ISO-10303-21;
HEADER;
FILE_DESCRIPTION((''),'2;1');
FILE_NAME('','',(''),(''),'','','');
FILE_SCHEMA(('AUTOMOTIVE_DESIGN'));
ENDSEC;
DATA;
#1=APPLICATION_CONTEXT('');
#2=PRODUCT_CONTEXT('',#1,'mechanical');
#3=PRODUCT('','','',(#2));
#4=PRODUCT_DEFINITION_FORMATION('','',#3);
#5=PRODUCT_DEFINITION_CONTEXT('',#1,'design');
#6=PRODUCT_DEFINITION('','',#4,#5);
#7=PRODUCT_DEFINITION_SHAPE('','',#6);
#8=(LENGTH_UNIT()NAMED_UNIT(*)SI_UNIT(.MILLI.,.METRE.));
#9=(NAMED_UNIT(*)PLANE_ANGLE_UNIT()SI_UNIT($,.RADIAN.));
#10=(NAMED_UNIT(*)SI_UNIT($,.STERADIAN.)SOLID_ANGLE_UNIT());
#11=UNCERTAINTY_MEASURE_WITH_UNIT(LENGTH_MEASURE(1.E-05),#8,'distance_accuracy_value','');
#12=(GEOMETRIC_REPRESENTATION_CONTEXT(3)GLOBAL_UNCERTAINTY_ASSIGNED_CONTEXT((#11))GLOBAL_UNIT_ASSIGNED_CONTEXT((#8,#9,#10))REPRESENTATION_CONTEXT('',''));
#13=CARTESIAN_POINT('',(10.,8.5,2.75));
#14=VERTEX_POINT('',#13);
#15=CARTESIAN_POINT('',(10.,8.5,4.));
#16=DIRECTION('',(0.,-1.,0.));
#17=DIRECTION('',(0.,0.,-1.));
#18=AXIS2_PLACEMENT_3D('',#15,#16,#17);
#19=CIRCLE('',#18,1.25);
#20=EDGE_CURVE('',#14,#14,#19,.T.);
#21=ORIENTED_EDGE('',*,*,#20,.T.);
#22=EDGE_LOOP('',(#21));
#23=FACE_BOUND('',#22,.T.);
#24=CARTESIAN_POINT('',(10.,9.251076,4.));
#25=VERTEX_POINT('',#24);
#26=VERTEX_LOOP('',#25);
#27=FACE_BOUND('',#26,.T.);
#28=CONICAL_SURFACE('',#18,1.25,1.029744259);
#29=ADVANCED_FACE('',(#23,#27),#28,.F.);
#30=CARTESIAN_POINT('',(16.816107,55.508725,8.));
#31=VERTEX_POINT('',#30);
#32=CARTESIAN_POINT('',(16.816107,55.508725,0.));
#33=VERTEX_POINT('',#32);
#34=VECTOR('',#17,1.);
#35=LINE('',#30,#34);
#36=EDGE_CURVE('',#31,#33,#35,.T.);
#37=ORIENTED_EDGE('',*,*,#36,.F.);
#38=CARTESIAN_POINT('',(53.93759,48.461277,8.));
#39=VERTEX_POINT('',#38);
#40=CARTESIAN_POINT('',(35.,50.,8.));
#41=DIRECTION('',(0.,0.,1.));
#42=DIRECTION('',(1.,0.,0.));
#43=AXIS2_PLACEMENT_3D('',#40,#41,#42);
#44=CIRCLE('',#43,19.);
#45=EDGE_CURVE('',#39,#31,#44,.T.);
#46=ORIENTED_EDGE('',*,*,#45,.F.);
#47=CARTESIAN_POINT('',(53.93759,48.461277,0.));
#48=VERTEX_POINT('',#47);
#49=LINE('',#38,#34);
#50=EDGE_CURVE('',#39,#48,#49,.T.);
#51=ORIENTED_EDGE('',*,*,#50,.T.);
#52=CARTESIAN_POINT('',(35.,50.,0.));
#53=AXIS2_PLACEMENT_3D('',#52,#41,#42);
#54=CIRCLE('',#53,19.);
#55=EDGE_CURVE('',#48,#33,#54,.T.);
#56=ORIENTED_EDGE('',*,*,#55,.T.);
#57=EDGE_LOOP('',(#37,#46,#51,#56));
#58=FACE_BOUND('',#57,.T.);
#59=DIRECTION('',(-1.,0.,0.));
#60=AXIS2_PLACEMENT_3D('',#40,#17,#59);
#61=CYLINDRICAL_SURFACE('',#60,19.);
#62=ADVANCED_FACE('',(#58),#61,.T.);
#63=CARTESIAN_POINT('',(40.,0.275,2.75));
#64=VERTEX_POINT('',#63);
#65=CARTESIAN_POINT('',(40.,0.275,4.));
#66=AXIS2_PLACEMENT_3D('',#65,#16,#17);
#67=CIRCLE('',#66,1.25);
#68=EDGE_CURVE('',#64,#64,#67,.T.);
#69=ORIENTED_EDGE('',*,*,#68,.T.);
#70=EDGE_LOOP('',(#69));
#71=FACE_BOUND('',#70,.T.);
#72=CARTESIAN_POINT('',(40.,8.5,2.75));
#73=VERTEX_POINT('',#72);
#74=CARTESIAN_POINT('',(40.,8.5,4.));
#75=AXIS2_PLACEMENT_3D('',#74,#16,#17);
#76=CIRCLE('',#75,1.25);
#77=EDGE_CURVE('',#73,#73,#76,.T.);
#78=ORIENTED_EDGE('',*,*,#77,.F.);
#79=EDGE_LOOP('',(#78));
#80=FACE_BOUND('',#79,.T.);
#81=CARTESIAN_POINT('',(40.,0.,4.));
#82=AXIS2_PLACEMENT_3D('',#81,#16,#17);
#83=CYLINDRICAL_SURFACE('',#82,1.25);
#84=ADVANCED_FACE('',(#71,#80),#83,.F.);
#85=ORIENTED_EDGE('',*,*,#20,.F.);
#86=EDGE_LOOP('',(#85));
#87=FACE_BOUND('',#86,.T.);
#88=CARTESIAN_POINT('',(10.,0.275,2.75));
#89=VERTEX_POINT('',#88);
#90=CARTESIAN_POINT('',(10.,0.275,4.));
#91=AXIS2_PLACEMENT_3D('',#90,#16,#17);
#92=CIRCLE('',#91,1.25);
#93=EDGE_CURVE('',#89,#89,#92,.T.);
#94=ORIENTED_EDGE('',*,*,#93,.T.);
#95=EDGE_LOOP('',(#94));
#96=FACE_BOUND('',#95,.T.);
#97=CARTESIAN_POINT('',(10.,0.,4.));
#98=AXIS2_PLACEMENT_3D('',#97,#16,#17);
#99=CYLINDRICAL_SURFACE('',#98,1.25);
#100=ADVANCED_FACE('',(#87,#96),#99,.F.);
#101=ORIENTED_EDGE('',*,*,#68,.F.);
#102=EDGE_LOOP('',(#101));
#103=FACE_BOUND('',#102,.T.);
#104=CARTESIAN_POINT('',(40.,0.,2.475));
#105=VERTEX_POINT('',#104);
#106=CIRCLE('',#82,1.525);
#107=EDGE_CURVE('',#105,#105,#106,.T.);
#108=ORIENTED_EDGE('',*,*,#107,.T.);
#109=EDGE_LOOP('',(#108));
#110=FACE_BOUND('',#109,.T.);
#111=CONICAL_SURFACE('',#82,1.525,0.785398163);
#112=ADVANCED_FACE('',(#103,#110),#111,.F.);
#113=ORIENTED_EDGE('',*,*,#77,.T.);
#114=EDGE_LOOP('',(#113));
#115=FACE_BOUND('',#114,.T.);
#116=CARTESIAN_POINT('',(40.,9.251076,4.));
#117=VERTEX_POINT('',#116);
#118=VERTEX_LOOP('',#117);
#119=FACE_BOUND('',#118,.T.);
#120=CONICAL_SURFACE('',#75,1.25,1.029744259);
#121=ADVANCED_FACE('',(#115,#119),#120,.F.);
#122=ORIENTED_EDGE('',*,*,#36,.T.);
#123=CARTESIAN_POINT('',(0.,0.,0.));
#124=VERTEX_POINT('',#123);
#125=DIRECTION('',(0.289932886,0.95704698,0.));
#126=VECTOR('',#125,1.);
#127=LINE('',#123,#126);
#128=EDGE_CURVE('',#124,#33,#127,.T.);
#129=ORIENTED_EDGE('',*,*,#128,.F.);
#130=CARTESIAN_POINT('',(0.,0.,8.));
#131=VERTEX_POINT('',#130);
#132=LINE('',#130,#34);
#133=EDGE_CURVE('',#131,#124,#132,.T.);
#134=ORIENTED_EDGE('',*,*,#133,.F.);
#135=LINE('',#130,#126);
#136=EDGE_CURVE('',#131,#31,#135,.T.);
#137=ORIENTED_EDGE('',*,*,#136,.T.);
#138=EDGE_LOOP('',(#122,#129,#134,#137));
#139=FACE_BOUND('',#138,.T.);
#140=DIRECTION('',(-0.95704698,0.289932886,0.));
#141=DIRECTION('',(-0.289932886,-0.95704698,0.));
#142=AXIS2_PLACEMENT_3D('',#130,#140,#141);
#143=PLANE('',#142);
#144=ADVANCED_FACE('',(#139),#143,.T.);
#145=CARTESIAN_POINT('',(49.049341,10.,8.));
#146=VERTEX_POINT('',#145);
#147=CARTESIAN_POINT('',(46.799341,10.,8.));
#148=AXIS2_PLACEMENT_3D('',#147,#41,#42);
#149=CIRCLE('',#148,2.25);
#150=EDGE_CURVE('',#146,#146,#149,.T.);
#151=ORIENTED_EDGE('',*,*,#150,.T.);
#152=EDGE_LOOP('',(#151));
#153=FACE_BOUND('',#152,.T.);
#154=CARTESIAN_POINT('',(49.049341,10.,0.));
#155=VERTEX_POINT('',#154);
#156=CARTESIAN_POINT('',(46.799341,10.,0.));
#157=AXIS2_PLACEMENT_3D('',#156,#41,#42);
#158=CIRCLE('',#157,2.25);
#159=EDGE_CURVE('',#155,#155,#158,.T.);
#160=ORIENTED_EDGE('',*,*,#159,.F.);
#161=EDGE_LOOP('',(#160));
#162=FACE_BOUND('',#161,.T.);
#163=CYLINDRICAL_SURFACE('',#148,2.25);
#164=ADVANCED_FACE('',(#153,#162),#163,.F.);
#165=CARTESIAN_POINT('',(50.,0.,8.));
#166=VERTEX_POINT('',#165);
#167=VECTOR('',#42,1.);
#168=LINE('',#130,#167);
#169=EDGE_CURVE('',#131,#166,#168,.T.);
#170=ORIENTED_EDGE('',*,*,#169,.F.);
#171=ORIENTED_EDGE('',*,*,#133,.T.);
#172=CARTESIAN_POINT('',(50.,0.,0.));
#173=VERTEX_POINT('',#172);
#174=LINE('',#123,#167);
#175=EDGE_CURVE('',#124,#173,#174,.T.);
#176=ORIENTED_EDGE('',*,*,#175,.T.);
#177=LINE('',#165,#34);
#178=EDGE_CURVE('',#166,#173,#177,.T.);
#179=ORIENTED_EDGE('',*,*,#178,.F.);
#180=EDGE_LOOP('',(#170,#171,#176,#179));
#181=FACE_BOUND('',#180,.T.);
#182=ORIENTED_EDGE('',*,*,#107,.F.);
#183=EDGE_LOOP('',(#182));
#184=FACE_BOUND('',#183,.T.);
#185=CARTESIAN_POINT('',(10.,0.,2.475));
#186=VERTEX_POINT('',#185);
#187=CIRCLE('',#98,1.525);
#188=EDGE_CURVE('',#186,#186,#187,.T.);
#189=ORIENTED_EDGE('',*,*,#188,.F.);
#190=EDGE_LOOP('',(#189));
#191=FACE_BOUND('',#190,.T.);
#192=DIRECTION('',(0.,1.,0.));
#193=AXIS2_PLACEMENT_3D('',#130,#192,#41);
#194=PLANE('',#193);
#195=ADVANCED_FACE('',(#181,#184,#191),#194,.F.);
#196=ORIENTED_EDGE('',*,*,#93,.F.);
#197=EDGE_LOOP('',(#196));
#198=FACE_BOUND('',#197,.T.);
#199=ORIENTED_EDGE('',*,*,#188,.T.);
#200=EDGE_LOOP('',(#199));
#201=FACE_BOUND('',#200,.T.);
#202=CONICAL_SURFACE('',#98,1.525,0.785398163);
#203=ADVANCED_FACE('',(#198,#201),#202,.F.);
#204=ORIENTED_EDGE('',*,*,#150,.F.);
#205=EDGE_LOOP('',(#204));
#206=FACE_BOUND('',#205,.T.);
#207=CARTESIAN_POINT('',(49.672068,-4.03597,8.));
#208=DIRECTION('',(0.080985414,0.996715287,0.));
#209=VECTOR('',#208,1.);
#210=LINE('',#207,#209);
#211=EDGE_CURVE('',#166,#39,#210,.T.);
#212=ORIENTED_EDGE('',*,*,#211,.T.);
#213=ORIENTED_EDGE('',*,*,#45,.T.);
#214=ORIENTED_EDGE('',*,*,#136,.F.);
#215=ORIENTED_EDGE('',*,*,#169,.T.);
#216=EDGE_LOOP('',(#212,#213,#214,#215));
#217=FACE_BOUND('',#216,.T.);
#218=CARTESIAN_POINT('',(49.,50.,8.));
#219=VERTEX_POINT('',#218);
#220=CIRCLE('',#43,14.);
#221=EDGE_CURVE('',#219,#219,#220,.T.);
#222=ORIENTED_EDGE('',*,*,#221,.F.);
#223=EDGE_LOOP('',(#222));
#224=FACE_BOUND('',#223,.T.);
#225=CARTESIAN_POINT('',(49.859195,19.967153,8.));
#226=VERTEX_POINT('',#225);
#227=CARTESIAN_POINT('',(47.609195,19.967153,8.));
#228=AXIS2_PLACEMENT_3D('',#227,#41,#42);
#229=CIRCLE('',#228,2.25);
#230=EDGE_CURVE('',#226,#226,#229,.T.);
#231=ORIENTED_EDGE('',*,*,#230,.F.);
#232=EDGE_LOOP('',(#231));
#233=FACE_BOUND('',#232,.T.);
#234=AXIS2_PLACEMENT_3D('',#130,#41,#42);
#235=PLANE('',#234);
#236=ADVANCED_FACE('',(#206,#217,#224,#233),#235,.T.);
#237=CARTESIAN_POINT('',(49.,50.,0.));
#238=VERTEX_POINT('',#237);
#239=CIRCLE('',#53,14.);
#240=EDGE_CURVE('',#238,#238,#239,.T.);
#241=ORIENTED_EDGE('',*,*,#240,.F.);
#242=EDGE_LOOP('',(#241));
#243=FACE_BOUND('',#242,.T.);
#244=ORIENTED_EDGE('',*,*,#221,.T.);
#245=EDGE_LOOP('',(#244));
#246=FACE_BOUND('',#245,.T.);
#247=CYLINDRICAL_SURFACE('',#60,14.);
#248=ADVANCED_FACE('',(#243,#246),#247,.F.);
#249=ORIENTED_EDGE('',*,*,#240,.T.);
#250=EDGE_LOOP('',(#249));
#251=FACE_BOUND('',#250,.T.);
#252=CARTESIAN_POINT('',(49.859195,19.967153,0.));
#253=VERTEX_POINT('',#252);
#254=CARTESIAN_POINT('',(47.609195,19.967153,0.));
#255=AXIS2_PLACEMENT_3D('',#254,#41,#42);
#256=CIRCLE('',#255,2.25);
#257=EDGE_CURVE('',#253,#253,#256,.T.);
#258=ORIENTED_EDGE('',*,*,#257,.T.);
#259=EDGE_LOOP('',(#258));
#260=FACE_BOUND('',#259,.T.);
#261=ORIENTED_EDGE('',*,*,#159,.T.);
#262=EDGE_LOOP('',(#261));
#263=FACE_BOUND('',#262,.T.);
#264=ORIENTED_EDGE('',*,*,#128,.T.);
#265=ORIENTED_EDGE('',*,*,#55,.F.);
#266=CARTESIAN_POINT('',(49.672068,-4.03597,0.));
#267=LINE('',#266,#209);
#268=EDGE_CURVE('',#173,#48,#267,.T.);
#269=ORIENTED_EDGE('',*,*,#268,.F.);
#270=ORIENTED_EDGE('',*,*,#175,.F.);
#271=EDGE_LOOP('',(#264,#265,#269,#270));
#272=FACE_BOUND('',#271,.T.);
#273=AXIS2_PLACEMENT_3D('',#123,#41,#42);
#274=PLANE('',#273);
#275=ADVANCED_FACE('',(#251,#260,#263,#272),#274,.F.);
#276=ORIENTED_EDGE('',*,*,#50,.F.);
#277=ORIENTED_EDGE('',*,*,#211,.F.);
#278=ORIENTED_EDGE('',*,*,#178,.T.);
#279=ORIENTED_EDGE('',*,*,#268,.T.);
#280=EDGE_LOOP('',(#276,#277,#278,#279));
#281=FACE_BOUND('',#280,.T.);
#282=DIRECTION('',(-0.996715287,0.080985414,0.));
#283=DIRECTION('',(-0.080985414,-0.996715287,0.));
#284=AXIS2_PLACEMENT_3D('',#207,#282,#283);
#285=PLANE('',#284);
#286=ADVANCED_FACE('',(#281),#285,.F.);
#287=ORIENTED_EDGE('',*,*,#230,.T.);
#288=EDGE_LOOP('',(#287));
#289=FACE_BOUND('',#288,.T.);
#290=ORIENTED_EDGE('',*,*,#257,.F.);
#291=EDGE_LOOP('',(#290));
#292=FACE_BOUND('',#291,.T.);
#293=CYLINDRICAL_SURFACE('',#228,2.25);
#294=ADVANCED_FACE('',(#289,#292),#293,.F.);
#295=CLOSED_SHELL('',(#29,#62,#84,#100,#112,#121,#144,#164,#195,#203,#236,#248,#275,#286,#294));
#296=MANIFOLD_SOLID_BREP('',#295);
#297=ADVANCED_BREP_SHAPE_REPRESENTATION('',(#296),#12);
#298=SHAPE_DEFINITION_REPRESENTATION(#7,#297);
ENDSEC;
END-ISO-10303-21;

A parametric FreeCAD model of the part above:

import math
import FreeCAD as App
import Part
import Sketcher
Q = App.Units.Quantity

doc = App.newDocument("Part")
body = doc.addObject("PartDesign::Body", "Body")

# Sketch on XY plane
sketch1 = body.newObject("Sketcher::SketchObject", "Sketch")
sketch1.AttachmentSupport = (doc.getObject("XY_Plane"), [""])
sketch1.MapMode = "FlatFace"
sketch1.addGeometry([
    Part.LineSegment(App.Vector(16.816107, 55.508725, 0), App.Vector(0, 0, 0)),  # 0
    Part.LineSegment(App.Vector(0, 0, 0), App.Vector(50, 0, 0)),  # 1
    Part.LineSegment(App.Vector(50, 0, 0), App.Vector(53.93759, 48.461277, 0)),  # 2
    Part.ArcOfCircle(Part.Circle(App.Vector(35, 50, 0), App.Vector(0, 0, 1), 19), math.radians(-4.64521), math.radians(163.146062)),  # 3
    Part.Circle(App.Vector(35, 50, 0), App.Vector(0, 0, 1), 14),  # 4
], False)
sketch1.addConstraint([
    Sketcher.Constraint("Coincident", 0, 2, 1, 1),
    Sketcher.Constraint("Coincident", 1, 2, 2, 1),
    Sketcher.Constraint("Tangent", 2, 2, 3, 1),
    Sketcher.Constraint("Tangent", 3, 2, 0, 1),
    Sketcher.Constraint("Horizontal", 1),
    Sketcher.Constraint("Coincident", 0, 2, -1, 1),
    Sketcher.Constraint("Coincident", 4, 3, 3, 3),
    Sketcher.Constraint("Diameter", 4, Q("28 mm")),
    Sketcher.Constraint("Radius", 3, Q("19 mm")),
    Sketcher.Constraint("DistanceX", 1, 1, 1, 2, Q("50 mm")),
    Sketcher.Constraint("Distance", 0, Q("58 mm")),
    Sketcher.Constraint("DistanceX", -1, 1, 3, 3, Q("35 mm")),
])
pad1 = body.newObject("PartDesign::Pad", "Pad")
pad1.Profile = sketch1
pad1.Length = 8

# Sketch on XY plane
sketch2 = body.newObject("Sketcher::SketchObject", "Sketch001")
sketch2.AttachmentSupport = (doc.getObject("XY_Plane"), [""])
sketch2.MapMode = "FlatFace"
sketch2.AttachmentOffset = App.Placement(App.Vector(0, 0, 8), App.Rotation())
sketch2.addGeometry([
    Part.Circle(App.Vector(46.799341, 10, 0), App.Vector(0, 0, 1), 2.25),
    Part.Circle(App.Vector(47.609195, 19.967153, 0), App.Vector(0, 0, 1), 2.25),
], False)
sketch2.addConstraint([
    Sketcher.Constraint("Equal", 0, 1),
    Sketcher.Constraint("Diameter", 0, Q("4.5 mm")),
    Sketcher.Constraint("DistanceY", -1, 1, 0, 3, Q("10 mm")),
    Sketcher.Constraint("DistanceX", -1, 1, 0, 3, Q("46.799341 mm")),
    Sketcher.Constraint("DistanceX", -1, 1, 1, 3, Q("47.609195 mm")),
    Sketcher.Constraint("DistanceY", -1, 1, 1, 3, Q("19.967153 mm")),
])
doc.recompute()
hole = body.newObject("PartDesign::Hole", "Hole")
hole.Profile = sketch2
hole.ThreadType = "None"
hole.Diameter = 4.5
hole.DepthType = "ThroughAll"

# Sketch on XZ plane
sketch3 = body.newObject("Sketcher::SketchObject", "Sketch002")
sketch3.AttachmentSupport = (doc.getObject("XZ_Plane"), [""])
sketch3.MapMode = "FlatFace"
sketch3.addGeometry([
    Part.Circle(App.Vector(10, 4, 0), App.Vector(0, 0, 1), 1.25),
    Part.Circle(App.Vector(40, 4, 0), App.Vector(0, 0, 1), 1.25),
], False)
sketch3.addConstraint([
    Sketcher.Constraint("Equal", 0, 1),
    Sketcher.Constraint("Horizontal", 0, 3, 1, 3),
    Sketcher.Constraint("Diameter", 0, Q("2.5 mm")),
    Sketcher.Constraint("DistanceX", -1, 1, 0, 3, Q("10 mm")),
    Sketcher.Constraint("DistanceY", -1, 1, 0, 3, Q("4 mm")),
    Sketcher.Constraint("DistanceX", -1, 1, 1, 3, Q("40 mm")),
])
doc.recompute()
hole2 = body.newObject("PartDesign::Hole", "Hole001")
hole2.Profile = sketch3
hole2.ThreadType = "None"
hole2.Diameter = 2.5
hole2.DepthType = "Dimension"
hole2.Depth = 8.5
hole2.DrillPoint = "Angled"
hole2.DrillPointAngle = 118
hole2.HoleCutType = "Countersink"
hole2.HoleCutDiameter = 3.05
hole2.HoleCutCountersinkAngle = 90

doc.recompute()
